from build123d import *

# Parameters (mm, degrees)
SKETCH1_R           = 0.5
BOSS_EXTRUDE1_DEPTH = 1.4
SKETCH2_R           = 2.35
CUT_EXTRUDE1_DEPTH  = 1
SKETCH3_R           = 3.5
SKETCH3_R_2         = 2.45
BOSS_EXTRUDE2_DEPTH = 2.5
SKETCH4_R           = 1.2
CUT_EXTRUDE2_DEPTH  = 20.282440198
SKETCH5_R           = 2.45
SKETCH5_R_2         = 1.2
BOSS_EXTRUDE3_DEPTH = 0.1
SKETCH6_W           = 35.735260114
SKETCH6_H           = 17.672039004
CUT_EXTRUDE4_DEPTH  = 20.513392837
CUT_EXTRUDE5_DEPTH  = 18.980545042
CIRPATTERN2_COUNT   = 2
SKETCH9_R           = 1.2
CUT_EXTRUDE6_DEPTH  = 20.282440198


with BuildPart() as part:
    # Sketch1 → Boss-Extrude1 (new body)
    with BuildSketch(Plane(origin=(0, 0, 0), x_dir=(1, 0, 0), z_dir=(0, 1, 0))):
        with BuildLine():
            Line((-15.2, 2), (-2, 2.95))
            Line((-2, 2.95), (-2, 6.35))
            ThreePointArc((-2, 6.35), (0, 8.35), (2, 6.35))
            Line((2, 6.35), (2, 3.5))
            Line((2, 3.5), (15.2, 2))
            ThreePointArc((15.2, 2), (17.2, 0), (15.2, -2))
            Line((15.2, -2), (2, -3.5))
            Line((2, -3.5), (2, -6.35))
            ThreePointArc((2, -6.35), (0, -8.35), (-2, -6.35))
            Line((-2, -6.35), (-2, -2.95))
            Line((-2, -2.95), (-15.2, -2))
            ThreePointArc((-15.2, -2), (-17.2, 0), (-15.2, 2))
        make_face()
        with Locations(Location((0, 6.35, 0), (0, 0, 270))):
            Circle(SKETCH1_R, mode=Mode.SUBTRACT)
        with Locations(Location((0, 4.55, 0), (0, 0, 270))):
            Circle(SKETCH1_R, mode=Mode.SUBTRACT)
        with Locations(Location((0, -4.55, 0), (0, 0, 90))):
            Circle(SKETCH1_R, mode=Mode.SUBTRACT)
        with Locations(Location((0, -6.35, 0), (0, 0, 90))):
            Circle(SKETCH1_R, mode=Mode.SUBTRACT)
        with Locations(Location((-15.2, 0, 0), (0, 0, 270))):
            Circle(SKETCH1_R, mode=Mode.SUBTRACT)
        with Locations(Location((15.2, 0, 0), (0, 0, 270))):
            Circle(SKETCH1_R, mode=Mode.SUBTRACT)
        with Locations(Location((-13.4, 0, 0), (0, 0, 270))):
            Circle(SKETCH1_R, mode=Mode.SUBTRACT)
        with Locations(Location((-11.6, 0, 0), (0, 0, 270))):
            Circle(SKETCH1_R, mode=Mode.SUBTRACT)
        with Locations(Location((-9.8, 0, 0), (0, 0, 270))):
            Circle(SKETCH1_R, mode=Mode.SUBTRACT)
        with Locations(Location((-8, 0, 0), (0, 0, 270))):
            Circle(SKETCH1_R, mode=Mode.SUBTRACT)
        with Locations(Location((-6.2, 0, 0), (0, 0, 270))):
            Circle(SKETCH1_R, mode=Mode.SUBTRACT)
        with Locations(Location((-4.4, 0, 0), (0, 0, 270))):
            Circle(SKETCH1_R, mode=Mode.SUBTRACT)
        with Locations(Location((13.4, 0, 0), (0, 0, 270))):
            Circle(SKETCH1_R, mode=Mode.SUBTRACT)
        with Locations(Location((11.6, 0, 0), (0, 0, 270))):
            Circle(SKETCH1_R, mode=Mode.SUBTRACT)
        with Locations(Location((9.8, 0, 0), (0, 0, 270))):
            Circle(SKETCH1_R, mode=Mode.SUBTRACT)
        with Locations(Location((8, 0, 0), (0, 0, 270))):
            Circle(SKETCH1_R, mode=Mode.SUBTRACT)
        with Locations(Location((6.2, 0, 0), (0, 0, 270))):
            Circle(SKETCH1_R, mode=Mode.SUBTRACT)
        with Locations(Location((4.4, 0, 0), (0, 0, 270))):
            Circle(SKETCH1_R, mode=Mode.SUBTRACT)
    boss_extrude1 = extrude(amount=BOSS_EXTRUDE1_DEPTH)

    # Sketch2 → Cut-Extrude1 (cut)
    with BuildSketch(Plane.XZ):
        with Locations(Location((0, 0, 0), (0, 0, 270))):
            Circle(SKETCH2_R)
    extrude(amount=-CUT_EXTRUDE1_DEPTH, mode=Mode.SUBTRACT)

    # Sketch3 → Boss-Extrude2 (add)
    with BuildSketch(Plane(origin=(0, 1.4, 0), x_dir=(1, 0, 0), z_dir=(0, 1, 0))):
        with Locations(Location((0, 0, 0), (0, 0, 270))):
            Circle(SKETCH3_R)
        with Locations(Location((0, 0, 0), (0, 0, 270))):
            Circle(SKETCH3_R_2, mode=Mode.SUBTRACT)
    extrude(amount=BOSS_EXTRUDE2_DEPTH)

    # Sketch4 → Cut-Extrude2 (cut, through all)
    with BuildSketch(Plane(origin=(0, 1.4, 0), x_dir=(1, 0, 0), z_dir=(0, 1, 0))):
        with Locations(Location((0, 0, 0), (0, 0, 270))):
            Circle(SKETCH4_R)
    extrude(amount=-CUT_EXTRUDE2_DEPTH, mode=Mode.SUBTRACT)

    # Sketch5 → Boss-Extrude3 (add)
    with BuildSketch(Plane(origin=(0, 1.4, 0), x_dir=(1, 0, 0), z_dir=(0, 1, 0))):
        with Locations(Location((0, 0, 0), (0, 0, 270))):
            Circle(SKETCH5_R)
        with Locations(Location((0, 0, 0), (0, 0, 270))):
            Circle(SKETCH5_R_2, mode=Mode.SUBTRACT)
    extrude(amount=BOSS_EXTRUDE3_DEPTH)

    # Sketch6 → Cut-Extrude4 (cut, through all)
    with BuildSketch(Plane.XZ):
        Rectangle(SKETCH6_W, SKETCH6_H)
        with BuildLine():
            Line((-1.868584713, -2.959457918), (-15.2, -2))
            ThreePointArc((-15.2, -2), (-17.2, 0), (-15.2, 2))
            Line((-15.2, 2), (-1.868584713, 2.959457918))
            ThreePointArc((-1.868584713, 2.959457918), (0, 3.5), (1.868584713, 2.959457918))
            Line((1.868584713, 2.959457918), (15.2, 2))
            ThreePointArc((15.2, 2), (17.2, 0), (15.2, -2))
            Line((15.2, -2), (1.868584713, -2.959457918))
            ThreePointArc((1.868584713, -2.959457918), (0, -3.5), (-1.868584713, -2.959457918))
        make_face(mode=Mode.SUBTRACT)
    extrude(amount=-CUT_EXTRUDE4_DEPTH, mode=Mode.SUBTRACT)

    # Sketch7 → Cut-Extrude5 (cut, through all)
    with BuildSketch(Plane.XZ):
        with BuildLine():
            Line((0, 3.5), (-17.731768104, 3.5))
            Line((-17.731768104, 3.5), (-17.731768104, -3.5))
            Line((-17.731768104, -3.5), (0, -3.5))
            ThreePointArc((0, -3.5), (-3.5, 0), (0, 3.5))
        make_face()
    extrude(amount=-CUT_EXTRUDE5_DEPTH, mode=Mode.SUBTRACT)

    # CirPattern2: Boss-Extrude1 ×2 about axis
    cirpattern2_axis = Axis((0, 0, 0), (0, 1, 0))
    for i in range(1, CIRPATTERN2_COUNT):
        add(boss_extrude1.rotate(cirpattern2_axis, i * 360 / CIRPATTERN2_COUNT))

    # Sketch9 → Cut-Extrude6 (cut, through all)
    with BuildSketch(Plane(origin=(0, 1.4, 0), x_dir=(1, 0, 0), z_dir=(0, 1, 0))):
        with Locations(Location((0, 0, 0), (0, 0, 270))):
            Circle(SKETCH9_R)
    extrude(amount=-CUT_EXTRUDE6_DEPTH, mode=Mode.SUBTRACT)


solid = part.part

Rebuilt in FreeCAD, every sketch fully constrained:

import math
import FreeCAD as App
import Part
import Sketcher
from FreeCAD import Vector
Q = App.Units.Quantity

doc = App.newDocument("Part")
body = doc.addObject("PartDesign::Body", "Body")

# Sketch on XZ plane
sketch1 = body.newObject("Sketcher::SketchObject", "Sketch")
sketch1.AttachmentSupport = (doc.getObject("XZ_Plane"), [""])
sketch1.MapMode = "FlatFace"
sketch1.addGeometry(Part.LineSegment(Vector(-2, -3, 0), Vector(-15.2, -2, 0)), False)
sketch1.addGeometry(Part.ArcOfCircle(Part.Circle(Vector(-15.2, 0, 0), Vector(0, 0, 1), 2), math.radians(90), math.radians(270)), False)
sketch1.addGeometry(Part.LineSegment(Vector(-15.2, 2, 0), Vector(-2, 3, 0)), False)
sketch1.addGeometry(Part.LineSegment(Vector(-2, 3, 0), Vector(-2, 6.3, 0)), False)
sketch1.addGeometry(Part.ArcOfCircle(Part.Circle(Vector(0, 6.3, 0), Vector(0, 0, 1), 2), math.radians(0), math.radians(180)), False)
sketch1.addGeometry(Part.LineSegment(Vector(2, 6.3, 0), Vector(2, 3.5, 0)), False)
sketch1.addGeometry(Part.LineSegment(Vector(2, 3.5, 0), Vector(15.2, 2, 0)), False)
sketch1.addGeometry(Part.ArcOfCircle(Part.Circle(Vector(15.2, 0, 0), Vector(0, 0, 1), 2), math.radians(-90), math.radians(90)), False)
sketch1.addGeometry(Part.LineSegment(Vector(15.2, -2, 0), Vector(2, -3.5, 0)), False)
sketch1.addGeometry(Part.LineSegment(Vector(2, -3.5, 0), Vector(2, -6.3, 0)), False)
sketch1.addGeometry(Part.ArcOfCircle(Part.Circle(Vector(0, -6.3, 0), Vector(0, 0, 1), 2), math.radians(180), math.radians(360)), False)
sketch1.addGeometry(Part.LineSegment(Vector(-2, -6.3, 0), Vector(-2, -3, 0)), False)
sketch1.addGeometry(Part.Circle(Vector(0, 6.3, 0), Vector(0, 0, 1), 0.5), False)
sketch1.addGeometry(Part.Circle(Vector(0, 4.5, 0), Vector(0, 0, 1), 0.5), False)
sketch1.addGeometry(Part.Circle(Vector(15.2, 0, 0), Vector(0, 0, 1), 0.5), False)
sketch1.addGeometry(Part.Circle(Vector(13.4, 0, 0), Vector(0, 0, 1), 0.5), False)
sketch1.addGeometry(Part.Circle(Vector(11.6, 0, 0), Vector(0, 0, 1), 0.5), False)
sketch1.addGeometry(Part.Circle(Vector(9.8, 0, 0), Vector(0, 0, 1), 0.5), False)
sketch1.addGeometry(Part.Circle(Vector(8, 0, 0), Vector(0, 0, 1), 0.5), False)
sketch1.addGeometry(Part.Circle(Vector(6.2, 0, 0), Vector(0, 0, 1), 0.5), False)
sketch1.addGeometry(Part.Circle(Vector(4.4, 0, 0), Vector(0, 0, 1), 0.5), False)
sketch1.addGeometry(Part.Circle(Vector(-4.4, 0, 0), Vector(0, 0, 1), 0.5), False)
sketch1.addGeometry(Part.Circle(Vector(-6.2, 0, 0), Vector(0, 0, 1), 0.5), False)
sketch1.addGeometry(Part.Circle(Vector(-8, 0, 0), Vector(0, 0, 1), 0.5), False)
sketch1.addGeometry(Part.Circle(Vector(-9.8, 0, 0), Vector(0, 0, 1), 0.5), False)
sketch1.addGeometry(Part.Circle(Vector(-11.6, 0, 0), Vector(0, 0, 1), 0.5), False)
sketch1.addGeometry(Part.Circle(Vector(-13.4, 0, 0), Vector(0, 0, 1), 0.5), False)
sketch1.addGeometry(Part.Circle(Vector(-15.2, 0, 0), Vector(0, 0, 1), 0.5), False)
sketch1.addGeometry(Part.Circle(Vector(0, -4.5, 0), Vector(0, 0, 1), 0.5), False)
sketch1.addGeometry(Part.Circle(Vector(0, -6.3, 0), Vector(0, 0, 1), 0.5), False)
sketch1.addConstraint(Sketcher.Constraint("Coincident", 0, 2, 1, 2))
sketch1.addConstraint(Sketcher.Constraint("Coincident", 1, 1, 2, 1))
sketch1.addConstraint(Sketcher.Constraint("Coincident", 2, 2, 3, 1))
sketch1.addConstraint(Sketcher.Constraint("Tangent", 3, 2, 4, 2))
sketch1.addConstraint(Sketcher.Constraint("Tangent", 4, 1, 5, 1))
sketch1.addConstraint(Sketcher.Constraint("Coincident", 5, 2, 6, 1))
sketch1.addConstraint(Sketcher.Constraint("Coincident", 6, 2, 7, 2))
sketch1.addConstraint(Sketcher.Constraint("Coincident", 7, 1, 8, 1))
sketch1.addConstraint(Sketcher.Constraint("Coincident", 8, 2, 9, 1))
sketch1.addConstraint(Sketcher.Constraint("Tangent", 9, 2, 10, 2))
sketch1.addConstraint(Sketcher.Constraint("Tangent", 10, 1, 11, 1))
sketch1.addConstraint(Sketcher.Constraint("Coincident", 11, 2, 0, 1))
sketch1.addConstraint(Sketcher.Constraint("Vertical", 3))
sketch1.addConstraint(Sketcher.Constraint("Vertical", 5))
sketch1.addConstraint(Sketcher.Constraint("Vertical", 9))
sketch1.addConstraint(Sketcher.Constraint("Vertical", 11))
sketch1.addConstraint(Sketcher.Constraint("Coincident", 12, 3, 4, 3))
sketch1.addConstraint(Sketcher.Constraint("Coincident", 14, 3, 7, 3))
sketch1.addConstraint(Sketcher.Constraint("Coincident", 27, 3, 1, 3))
sketch1.addConstraint(Sketcher.Constraint("Coincident", 29, 3, 10, 3))
sketch1.addConstraint(Sketcher.Constraint("Equal", 1, 4))
sketch1.addConstraint(Sketcher.Constraint("Equal", 4, 7))
sketch1.addConstraint(Sketcher.Constraint("Equal", 7, 10))
sketch1.addConstraint(Sketcher.Constraint("Equal", 12, 13))
sketch1.addConstraint(Sketcher.Constraint("Equal", 13, 14))
sketch1.addConstraint(Sketcher.Constraint("Equal", 14, 15))
sketch1.addConstraint(Sketcher.Constraint("Equal", 15, 16))
sketch1.addConstraint(Sketcher.Constraint("Equal", 16, 17))
sketch1.addConstraint(Sketcher.Constraint("Equal", 17, 18))
sketch1.addConstraint(Sketcher.Constraint("Equal", 18, 19))
sketch1.addConstraint(Sketcher.Constraint("Equal", 19, 20))
sketch1.addConstraint(Sketcher.Constraint("Equal", 20, 21))
sketch1.addConstraint(Sketcher.Constraint("Equal", 21, 22))
sketch1.addConstraint(Sketcher.Constraint("Equal", 22, 23))
sketch1.addConstraint(Sketcher.Constraint("Equal", 23, 24))
sketch1.addConstraint(Sketcher.Constraint("Equal", 24, 25))
sketch1.addConstraint(Sketcher.Constraint("Equal", 25, 26))
sketch1.addConstraint(Sketcher.Constraint("Equal", 26, 27))
sketch1.addConstraint(Sketcher.Constraint("Equal", 27, 28))
sketch1.addConstraint(Sketcher.Constraint("Equal", 28, 29))
sketch1.addConstraint(Sketcher.Constraint("Symmetric", 1, 3, 7, 3, -1, 1))
sketch1.addConstraint(Sketcher.Constraint("Symmetric", 4, 3, 10, 3, -1, 1))
sketch1.addConstraint(Sketcher.Constraint("Symmetric", 20, 3, 21, 3, -1, 1))
sketch1.addConstraint(Sketcher.Constraint("Symmetric", 19, 3, 22, 3, -1, 1))
sketch1.addConstraint(Sketcher.Constraint("Symmetric", 18, 3, 23, 3, -1, 1))
sketch1.addConstraint(Sketcher.Constraint("Symmetric", 17, 3, 24, 3, -1, 1))
sketch1.addConstraint(Sketcher.Constraint("Symmetric", 16, 3, 25, 3, -1, 1))
sketch1.addConstraint(Sketcher.Constraint("Symmetric", 15, 3, 26, 3, -1, 1))
sketch1.addConstraint(Sketcher.Constraint("Symmetric", 13, 3, 28, 3, -1, 1))
sketch1.addConstraint(Sketcher.Constraint("Symmetric", 1, 1, 6, 2, -2))
sketch1.addConstraint(Sketcher.Constraint("Symmetric", 5, 2, 8, 2, -1))
sketch1.addConstraint(Sketcher.Constraint("PointOnObject", 13, 3, -2))
sketch1.addConstraint(Sketcher.Constraint("PointOnObject", 15, 3, -1))
sketch1.addConstraint(Sketcher.Constraint("PointOnObject", 16, 3, -1))
sketch1.addConstraint(Sketcher.Constraint("PointOnObject", 17, 3, -1))
sketch1.addConstraint(Sketcher.Constraint("PointOnObject", 18, 3, -1))
sketch1.addConstraint(Sketcher.Constraint("PointOnObject", 19, 3, -1))
sketch1.addConstraint(Sketcher.Constraint("PointOnObject", 20, 3, -1))
sketch1.addConstraint(Sketcher.Constraint("Vertical", 27, 3, 0, 2))
sketch1.addConstraint(Sketcher.Constraint("Vertical", 0, 2, 1, 1))
sketch1.addConstraint(Sketcher.Constraint("Vertical", 6, 2, 7, 1))
sketch1.addConstraint(Sketcher.Constraint("Equal", 3, 11))
sketch1.addConstraint(Sketcher.Constraint("Diameter", 12, Q("1 mm")))
sketch1.addConstraint(Sketcher.Constraint("Radius", 1, Q("2 mm")))
sketch1.addConstraint(Sketcher.Constraint("DistanceY", 3, 1, 3, 2, Q("3.4 mm")))
sketch1.addConstraint(Sketcher.Constraint("DistanceX", -1, 1, 18, 3, Q("8 mm")))
sketch1.addConstraint(Sketcher.Constraint("DistanceY", 5, 2, 5, 1, Q("2.85 mm")))
sketch1.addConstraint(Sketcher.Constraint("DistanceX", 1, 3, -1, 1, Q("15.2 mm")))
sketch1.addConstraint(Sketcher.Constraint("DistanceX", -1, 1, 15, 3, Q("13.4 mm")))
sketch1.addConstraint(Sketcher.Constraint("DistanceX", -1, 1, 16, 3, Q("11.6 mm")))
sketch1.addConstraint(Sketcher.Constraint("DistanceX", -1, 1, 17, 3, Q("9.8 mm")))
sketch1.addConstraint(Sketcher.Constraint("DistanceX", -1, 1, 19, 3, Q("6.2 mm")))
sketch1.addConstraint(Sketcher.Constraint("DistanceX", -1, 1, 20, 3, Q("4.4 mm")))
sketch1.addConstraint(Sketcher.Constraint("DistanceY", -1, 1, 5, 2, Q("3.5 mm")))
sketch1.addConstraint(Sketcher.Constraint("DistanceY", 13, 3, 4, 3, Q("1.8 mm")))
pad1 = body.newObject("PartDesign::Pad", "Pad")
pad1.Profile = sketch1
pad1.Length = 1.4
pad1.Reversed = True

# Sketch on XZ plane
sketch2 = body.newObject("Sketcher::SketchObject", "Sketch001")
sketch2.AttachmentSupport = (doc.getObject("XZ_Plane"), [""])
sketch2.MapMode = "FlatFace"
sketch2.addGeometry(Part.Circle(Vector(0, 0, 0), Vector(0, 0, 1), 2.4), False)
sketch2.addConstraint(Sketcher.Constraint("Coincident", 0, 3, -1, 1))
sketch2.addConstraint(Sketcher.Constraint("Diameter", 0, Q("4.7 mm")))
pocket1 = body.newObject("PartDesign::Pocket", "Pocket")
pocket1.Profile = sketch2
pocket1.Length = 1

# Sketch on XZ plane
sketch3 = body.newObject("Sketcher::SketchObject", "Sketch002")
sketch3.AttachmentSupport = (doc.getObject("XZ_Plane"), [""])
sketch3.MapMode = "FlatFace"
sketch3.AttachmentOffset = App.Placement(Vector(0, 0, -1.4), App.Rotation())
sketch3.addGeometry(Part.Circle(Vector(0, 0, 0), Vector(0, 0, 1), 3.5), False)
sketch3.addGeometry(Part.Circle(Vector(0, 0, 0), Vector(0, 0, 1), 2.5), False)
sketch3.addConstraint(Sketcher.Constraint("Coincident", 0, 3, -1, 1))
sketch3.addConstraint(Sketcher.Constraint("Coincident", 1, 3, -1, 1))
sketch3.addConstraint(Sketcher.Constraint("Diameter", 0, Q("7 mm")))
sketch3.addConstraint(Sketcher.Constraint("Diameter", 1, Q("4.9 mm")))
pad2 = body.newObject("PartDesign::Pad", "Pad001")
pad2.Profile = sketch3
pad2.Length = 2.5
pad2.Reversed = True

# Sketch on XZ plane
sketch4 = body.newObject("Sketcher::SketchObject", "Sketch003")
sketch4.AttachmentSupport = (doc.getObject("XZ_Plane"), [""])
sketch4.MapMode = "FlatFace"
sketch4.AttachmentOffset = App.Placement(Vector(0, 0, -1.4), App.Rotation())
sketch4.addGeometry(Part.Circle(Vector(0, 0, 0), Vector(0, 0, 1), 1.2), False)
sketch4.addConstraint(Sketcher.Constraint("Coincident", 0, 3, -1, 1))
sketch4.addConstraint(Sketcher.Constraint("Diameter", 0, Q("2.4 mm")))
pocket2 = body.newObject("PartDesign::Pocket", "Pocket001")
pocket2.Profile = sketch4
pocket2.Type = "ThroughAll"
pocket2.Reversed = True

# Sketch on XZ plane
sketch5 = body.newObject("Sketcher::SketchObject", "Sketch004")
sketch5.AttachmentSupport = (doc.getObject("XZ_Plane"), [""])
sketch5.MapMode = "FlatFace"
sketch5.AttachmentOffset = App.Placement(Vector(0, 0, -1.4), App.Rotation())
sketch5.addGeometry(Part.Circle(Vector(0, 0, 0), Vector(0, 0, 1), 2.5), False)
sketch5.addGeometry(Part.Circle(Vector(0, 0, 0), Vector(0, 0, 1), 1.2), False)
sketch5.addConstraint(Sketcher.Constraint("Coincident", 0, 3, -1, 1))
sketch5.addConstraint(Sketcher.Constraint("Coincident", 1, 3, -1, 1))
sketch5.addConstraint(Sketcher.Constraint("Diameter", 0, Q("4.9 mm")))
sketch5.addConstraint(Sketcher.Constraint("Diameter", 1, Q("2.4 mm")))
pad3 = body.newObject("PartDesign::Pad", "Pad002")
pad3.Profile = sketch5
pad3.Length = 0.1
pad3.Reversed = True

# Sketch on XZ plane
sketch6 = body.newObject("Sketcher::SketchObject", "Sketch005")
sketch6.AttachmentSupport = (doc.getObject("XZ_Plane"), [""])
sketch6.MapMode = "FlatFace"
sketch6.addGeometry(Part.LineSegment(Vector(-17.9, 8.8, 0), Vector(-17.9, -8.8, 0)), False)
sketch6.addGeometry(Part.LineSegment(Vector(-17.9, -8.8, 0), Vector(17.9, -8.8, 0)), False)
sketch6.addGeometry(Part.LineSegment(Vector(17.9, -8.8, 0), Vector(17.9, 8.8, 0)), False)
sketch6.addGeometry(Part.LineSegment(Vector(17.9, 8.8, 0), Vector(-17.9, 8.8, 0)), False)
sketch6.addGeometry(Part.ArcOfCircle(Part.Circle(Vector(0, 0, 0), Vector(0, 0, 1), 3.5), math.radians(-122), math.radians(-58)), False)
sketch6.addGeometry(Part.LineSegment(Vector(-1.9, -3, 0), Vector(-15.2, -2, 0)), False)
sketch6.addGeometry(Part.ArcOfCircle(Part.Circle(Vector(-15.2, 0, 0), Vector(0, 0, 1), 2), math.radians(90), math.radians(270)), False)
sketch6.addGeometry(Part.LineSegment(Vector(-15.2, 2, 0), Vector(-1.9, 3, 0)), False)
sketch6.addGeometry(Part.ArcOfCircle(Part.Circle(Vector(0, 0, 0), Vector(0, 0, 1), 3.5), math.radians(58), math.radians(122)), False)
sketch6.addGeometry(Part.LineSegment(Vector(1.9, 3, 0), Vector(15.2, 2, 0)), False)
sketch6.addGeometry(Part.ArcOfCircle(Part.Circle(Vector(15.2, 0, 0), Vector(0, 0, 1), 2), math.radians(-90), math.radians(90)), False)
sketch6.addGeometry(Part.LineSegment(Vector(15.2, -2, 0), Vector(1.9, -3, 0)), False)
sketch6.addConstraint(Sketcher.Constraint("Coincident", 0, 2, 1, 1))
sketch6.addConstraint(Sketcher.Constraint("Coincident", 1, 2, 2, 1))
sketch6.addConstraint(Sketcher.Constraint("Coincident", 2, 2, 3, 1))
sketch6.addConstraint(Sketcher.Constraint("Coincident", 3, 2, 0, 1))
sketch6.addConstraint(Sketcher.Constraint("Coincident", 4, 1, 5, 1))
sketch6.addConstraint(Sketcher.Constraint("Coincident", 5, 2, 6, 2))
sketch6.addConstraint(Sketcher.Constraint("Coincident", 6, 1, 7, 1))
sketch6.addConstraint(Sketcher.Constraint("Coincident", 7, 2, 8, 2))
sketch6.addConstraint(Sketcher.Constraint("Coincident", 8, 1, 9, 1))
sketch6.addConstraint(Sketcher.Constraint("Coincident", 9, 2, 10, 2))
sketch6.addConstraint(Sketcher.Constraint("Coincident", 10, 1, 11, 1))
sketch6.addConstraint(Sketcher.Constraint("Coincident", 11, 2, 4, 2))
sketch6.addConstraint(Sketcher.Constraint("Vertical", 0))
sketch6.addConstraint(Sketcher.Constraint("Horizontal", 1))
sketch6.addConstraint(Sketcher.Constraint("Vertical", 2))
sketch6.addConstraint(Sketcher.Constraint("Horizontal", 3))
sketch6.addConstraint(Sketcher.Constraint("Coincident", 4, 3, -1, 1))
sketch6.addConstraint(Sketcher.Constraint("Coincident", 8, 3, -1, 1))
sketch6.addConstraint(Sketcher.Constraint("Equal", 4, 8))
sketch6.addConstraint(Sketcher.Constraint("Equal", 6, 10))
sketch6.addConstraint(Sketcher.Constraint("Symmetric", 6, 3, 10, 3, -1, 1))
sketch6.addConstraint(Sketcher.Constraint("Symmetric", 0, 2, 2, 2, -1, 1))
sketch6.addConstraint(Sketcher.Constraint("Symmetric", 6, 1, 9, 2, -2))
sketch6.addConstraint(Sketcher.Constraint("Parallel", 5, 9))
sketch6.addConstraint(Sketcher.Constraint("Parallel", 7, 11))
sketch6.addConstraint(Sketcher.Constraint("Horizontal", 7, 2, 8, 1))
sketch6.addConstraint(Sketcher.Constraint("Horizontal", 4, 1, 11, 2))
sketch6.addConstraint(Sketcher.Constraint("Vertical", 6, 3, 5, 2))
sketch6.addConstraint(Sketcher.Constraint("Vertical", 5, 2, 6, 1))
sketch6.addConstraint(Sketcher.Constraint("Radius", 6, Q("2 mm")))
sketch6.addConstraint(Sketcher.Constraint("Radius", 4, Q("3.5 mm")))
sketch6.addConstraint(Sketcher.Constraint("DistanceX", 6, 3, -1, 1, Q("15.2 mm")))
sketch6.addConstraint(Sketcher.Constraint("DistanceX", 1, 1, 1, 2, Q("35.73526 mm")))
sketch6.addConstraint(Sketcher.Constraint("DistanceY", 0, 2, 0, 1, Q("17.672039 mm")))
sketch6.addConstraint(Sketcher.Constraint("DistanceY", 0, 2, 4, 1, Q("5.876562 mm")))
pocket3 = body.newObject("PartDesign::Pocket", "Pocket002")
pocket3.Profile = sketch6
pocket3.Type = "ThroughAll"

# Sketch on XZ plane
sketch7 = body.newObject("Sketcher::SketchObject", "Sketch006")
sketch7.AttachmentSupport = (doc.getObject("XZ_Plane"), [""])
sketch7.MapMode = "FlatFace"
sketch7.addGeometry(Part.LineSegment(Vector(0, 3.5, 0), Vector(-17.7, 3.5, 0)), False)
sketch7.addGeometry(Part.LineSegment(Vector(-17.7, 3.5, 0), Vector(-17.7, -3.5, 0)), False)
sketch7.addGeometry(Part.LineSegment(Vector(-17.7, -3.5, 0), Vector(0, -3.5, 0)), False)
sketch7.addGeometry(Part.ArcOfCircle(Part.Circle(Vector(0, 0, 0), Vector(0, 0, 1), 3.5), math.radians(90), math.radians(270)), False)
sketch7.addConstraint(Sketcher.Constraint("Coincident", 0, 2, 1, 1))
sketch7.addConstraint(Sketcher.Constraint("Coincident", 1, 2, 2, 1))
sketch7.addConstraint(Sketcher.Constraint("Tangent", 2, 2, 3, 2))
sketch7.addConstraint(Sketcher.Constraint("Tangent", 3, 1, 0, 1))
sketch7.addConstraint(Sketcher.Constraint("Horizontal", 0))
sketch7.addConstraint(Sketcher.Constraint("Vertical", 1))
sketch7.addConstraint(Sketcher.Constraint("Horizontal", 2))
sketch7.addConstraint(Sketcher.Constraint("Coincident", 3, 3, -1, 1))
sketch7.addConstraint(Sketcher.Constraint("Radius", 3, Q("3.5 mm")))
sketch7.addConstraint(Sketcher.Constraint("DistanceX", 0, 2, 0, 1, Q("17.731768 mm")))
pocket4 = body.newObject("PartDesign::Pocket", "Pocket003")
pocket4.Profile = sketch7
pocket4.Type = "ThroughAll"
doc.recompute()

polarpattern = body.newObject("PartDesign::PolarPattern", "PolarPattern")
polarpattern.Originals = [pad1]
polarpattern.Axis = (doc.getObject("Y_Axis"), [""])
polarpattern.Angle = 360
polarpattern.Occurrences = 2
body.Tip = polarpattern

# Sketch on XZ plane
sketch8 = body.newObject("Sketcher::SketchObject", "Sketch007")
sketch8.AttachmentSupport = (doc.getObject("XZ_Plane"), [""])
sketch8.MapMode = "FlatFace"
sketch8.AttachmentOffset = App.Placement(Vector(0, 0, -1.4), App.Rotation())
sketch8.addGeometry(Part.Circle(Vector(0, 0, 0), Vector(0, 0, 1), 1.2), False)
sketch8.addConstraint(Sketcher.Constraint("Coincident", 0, 3, -1, 1))
sketch8.addConstraint(Sketcher.Constraint("Diameter", 0, Q("2.4 mm")))
pocket5 = body.newObject("PartDesign::Pocket", "Pocket004")
pocket5.Profile = sketch8
pocket5.Type = "ThroughAll"
pocket5.Reversed = True

doc.recompute()
